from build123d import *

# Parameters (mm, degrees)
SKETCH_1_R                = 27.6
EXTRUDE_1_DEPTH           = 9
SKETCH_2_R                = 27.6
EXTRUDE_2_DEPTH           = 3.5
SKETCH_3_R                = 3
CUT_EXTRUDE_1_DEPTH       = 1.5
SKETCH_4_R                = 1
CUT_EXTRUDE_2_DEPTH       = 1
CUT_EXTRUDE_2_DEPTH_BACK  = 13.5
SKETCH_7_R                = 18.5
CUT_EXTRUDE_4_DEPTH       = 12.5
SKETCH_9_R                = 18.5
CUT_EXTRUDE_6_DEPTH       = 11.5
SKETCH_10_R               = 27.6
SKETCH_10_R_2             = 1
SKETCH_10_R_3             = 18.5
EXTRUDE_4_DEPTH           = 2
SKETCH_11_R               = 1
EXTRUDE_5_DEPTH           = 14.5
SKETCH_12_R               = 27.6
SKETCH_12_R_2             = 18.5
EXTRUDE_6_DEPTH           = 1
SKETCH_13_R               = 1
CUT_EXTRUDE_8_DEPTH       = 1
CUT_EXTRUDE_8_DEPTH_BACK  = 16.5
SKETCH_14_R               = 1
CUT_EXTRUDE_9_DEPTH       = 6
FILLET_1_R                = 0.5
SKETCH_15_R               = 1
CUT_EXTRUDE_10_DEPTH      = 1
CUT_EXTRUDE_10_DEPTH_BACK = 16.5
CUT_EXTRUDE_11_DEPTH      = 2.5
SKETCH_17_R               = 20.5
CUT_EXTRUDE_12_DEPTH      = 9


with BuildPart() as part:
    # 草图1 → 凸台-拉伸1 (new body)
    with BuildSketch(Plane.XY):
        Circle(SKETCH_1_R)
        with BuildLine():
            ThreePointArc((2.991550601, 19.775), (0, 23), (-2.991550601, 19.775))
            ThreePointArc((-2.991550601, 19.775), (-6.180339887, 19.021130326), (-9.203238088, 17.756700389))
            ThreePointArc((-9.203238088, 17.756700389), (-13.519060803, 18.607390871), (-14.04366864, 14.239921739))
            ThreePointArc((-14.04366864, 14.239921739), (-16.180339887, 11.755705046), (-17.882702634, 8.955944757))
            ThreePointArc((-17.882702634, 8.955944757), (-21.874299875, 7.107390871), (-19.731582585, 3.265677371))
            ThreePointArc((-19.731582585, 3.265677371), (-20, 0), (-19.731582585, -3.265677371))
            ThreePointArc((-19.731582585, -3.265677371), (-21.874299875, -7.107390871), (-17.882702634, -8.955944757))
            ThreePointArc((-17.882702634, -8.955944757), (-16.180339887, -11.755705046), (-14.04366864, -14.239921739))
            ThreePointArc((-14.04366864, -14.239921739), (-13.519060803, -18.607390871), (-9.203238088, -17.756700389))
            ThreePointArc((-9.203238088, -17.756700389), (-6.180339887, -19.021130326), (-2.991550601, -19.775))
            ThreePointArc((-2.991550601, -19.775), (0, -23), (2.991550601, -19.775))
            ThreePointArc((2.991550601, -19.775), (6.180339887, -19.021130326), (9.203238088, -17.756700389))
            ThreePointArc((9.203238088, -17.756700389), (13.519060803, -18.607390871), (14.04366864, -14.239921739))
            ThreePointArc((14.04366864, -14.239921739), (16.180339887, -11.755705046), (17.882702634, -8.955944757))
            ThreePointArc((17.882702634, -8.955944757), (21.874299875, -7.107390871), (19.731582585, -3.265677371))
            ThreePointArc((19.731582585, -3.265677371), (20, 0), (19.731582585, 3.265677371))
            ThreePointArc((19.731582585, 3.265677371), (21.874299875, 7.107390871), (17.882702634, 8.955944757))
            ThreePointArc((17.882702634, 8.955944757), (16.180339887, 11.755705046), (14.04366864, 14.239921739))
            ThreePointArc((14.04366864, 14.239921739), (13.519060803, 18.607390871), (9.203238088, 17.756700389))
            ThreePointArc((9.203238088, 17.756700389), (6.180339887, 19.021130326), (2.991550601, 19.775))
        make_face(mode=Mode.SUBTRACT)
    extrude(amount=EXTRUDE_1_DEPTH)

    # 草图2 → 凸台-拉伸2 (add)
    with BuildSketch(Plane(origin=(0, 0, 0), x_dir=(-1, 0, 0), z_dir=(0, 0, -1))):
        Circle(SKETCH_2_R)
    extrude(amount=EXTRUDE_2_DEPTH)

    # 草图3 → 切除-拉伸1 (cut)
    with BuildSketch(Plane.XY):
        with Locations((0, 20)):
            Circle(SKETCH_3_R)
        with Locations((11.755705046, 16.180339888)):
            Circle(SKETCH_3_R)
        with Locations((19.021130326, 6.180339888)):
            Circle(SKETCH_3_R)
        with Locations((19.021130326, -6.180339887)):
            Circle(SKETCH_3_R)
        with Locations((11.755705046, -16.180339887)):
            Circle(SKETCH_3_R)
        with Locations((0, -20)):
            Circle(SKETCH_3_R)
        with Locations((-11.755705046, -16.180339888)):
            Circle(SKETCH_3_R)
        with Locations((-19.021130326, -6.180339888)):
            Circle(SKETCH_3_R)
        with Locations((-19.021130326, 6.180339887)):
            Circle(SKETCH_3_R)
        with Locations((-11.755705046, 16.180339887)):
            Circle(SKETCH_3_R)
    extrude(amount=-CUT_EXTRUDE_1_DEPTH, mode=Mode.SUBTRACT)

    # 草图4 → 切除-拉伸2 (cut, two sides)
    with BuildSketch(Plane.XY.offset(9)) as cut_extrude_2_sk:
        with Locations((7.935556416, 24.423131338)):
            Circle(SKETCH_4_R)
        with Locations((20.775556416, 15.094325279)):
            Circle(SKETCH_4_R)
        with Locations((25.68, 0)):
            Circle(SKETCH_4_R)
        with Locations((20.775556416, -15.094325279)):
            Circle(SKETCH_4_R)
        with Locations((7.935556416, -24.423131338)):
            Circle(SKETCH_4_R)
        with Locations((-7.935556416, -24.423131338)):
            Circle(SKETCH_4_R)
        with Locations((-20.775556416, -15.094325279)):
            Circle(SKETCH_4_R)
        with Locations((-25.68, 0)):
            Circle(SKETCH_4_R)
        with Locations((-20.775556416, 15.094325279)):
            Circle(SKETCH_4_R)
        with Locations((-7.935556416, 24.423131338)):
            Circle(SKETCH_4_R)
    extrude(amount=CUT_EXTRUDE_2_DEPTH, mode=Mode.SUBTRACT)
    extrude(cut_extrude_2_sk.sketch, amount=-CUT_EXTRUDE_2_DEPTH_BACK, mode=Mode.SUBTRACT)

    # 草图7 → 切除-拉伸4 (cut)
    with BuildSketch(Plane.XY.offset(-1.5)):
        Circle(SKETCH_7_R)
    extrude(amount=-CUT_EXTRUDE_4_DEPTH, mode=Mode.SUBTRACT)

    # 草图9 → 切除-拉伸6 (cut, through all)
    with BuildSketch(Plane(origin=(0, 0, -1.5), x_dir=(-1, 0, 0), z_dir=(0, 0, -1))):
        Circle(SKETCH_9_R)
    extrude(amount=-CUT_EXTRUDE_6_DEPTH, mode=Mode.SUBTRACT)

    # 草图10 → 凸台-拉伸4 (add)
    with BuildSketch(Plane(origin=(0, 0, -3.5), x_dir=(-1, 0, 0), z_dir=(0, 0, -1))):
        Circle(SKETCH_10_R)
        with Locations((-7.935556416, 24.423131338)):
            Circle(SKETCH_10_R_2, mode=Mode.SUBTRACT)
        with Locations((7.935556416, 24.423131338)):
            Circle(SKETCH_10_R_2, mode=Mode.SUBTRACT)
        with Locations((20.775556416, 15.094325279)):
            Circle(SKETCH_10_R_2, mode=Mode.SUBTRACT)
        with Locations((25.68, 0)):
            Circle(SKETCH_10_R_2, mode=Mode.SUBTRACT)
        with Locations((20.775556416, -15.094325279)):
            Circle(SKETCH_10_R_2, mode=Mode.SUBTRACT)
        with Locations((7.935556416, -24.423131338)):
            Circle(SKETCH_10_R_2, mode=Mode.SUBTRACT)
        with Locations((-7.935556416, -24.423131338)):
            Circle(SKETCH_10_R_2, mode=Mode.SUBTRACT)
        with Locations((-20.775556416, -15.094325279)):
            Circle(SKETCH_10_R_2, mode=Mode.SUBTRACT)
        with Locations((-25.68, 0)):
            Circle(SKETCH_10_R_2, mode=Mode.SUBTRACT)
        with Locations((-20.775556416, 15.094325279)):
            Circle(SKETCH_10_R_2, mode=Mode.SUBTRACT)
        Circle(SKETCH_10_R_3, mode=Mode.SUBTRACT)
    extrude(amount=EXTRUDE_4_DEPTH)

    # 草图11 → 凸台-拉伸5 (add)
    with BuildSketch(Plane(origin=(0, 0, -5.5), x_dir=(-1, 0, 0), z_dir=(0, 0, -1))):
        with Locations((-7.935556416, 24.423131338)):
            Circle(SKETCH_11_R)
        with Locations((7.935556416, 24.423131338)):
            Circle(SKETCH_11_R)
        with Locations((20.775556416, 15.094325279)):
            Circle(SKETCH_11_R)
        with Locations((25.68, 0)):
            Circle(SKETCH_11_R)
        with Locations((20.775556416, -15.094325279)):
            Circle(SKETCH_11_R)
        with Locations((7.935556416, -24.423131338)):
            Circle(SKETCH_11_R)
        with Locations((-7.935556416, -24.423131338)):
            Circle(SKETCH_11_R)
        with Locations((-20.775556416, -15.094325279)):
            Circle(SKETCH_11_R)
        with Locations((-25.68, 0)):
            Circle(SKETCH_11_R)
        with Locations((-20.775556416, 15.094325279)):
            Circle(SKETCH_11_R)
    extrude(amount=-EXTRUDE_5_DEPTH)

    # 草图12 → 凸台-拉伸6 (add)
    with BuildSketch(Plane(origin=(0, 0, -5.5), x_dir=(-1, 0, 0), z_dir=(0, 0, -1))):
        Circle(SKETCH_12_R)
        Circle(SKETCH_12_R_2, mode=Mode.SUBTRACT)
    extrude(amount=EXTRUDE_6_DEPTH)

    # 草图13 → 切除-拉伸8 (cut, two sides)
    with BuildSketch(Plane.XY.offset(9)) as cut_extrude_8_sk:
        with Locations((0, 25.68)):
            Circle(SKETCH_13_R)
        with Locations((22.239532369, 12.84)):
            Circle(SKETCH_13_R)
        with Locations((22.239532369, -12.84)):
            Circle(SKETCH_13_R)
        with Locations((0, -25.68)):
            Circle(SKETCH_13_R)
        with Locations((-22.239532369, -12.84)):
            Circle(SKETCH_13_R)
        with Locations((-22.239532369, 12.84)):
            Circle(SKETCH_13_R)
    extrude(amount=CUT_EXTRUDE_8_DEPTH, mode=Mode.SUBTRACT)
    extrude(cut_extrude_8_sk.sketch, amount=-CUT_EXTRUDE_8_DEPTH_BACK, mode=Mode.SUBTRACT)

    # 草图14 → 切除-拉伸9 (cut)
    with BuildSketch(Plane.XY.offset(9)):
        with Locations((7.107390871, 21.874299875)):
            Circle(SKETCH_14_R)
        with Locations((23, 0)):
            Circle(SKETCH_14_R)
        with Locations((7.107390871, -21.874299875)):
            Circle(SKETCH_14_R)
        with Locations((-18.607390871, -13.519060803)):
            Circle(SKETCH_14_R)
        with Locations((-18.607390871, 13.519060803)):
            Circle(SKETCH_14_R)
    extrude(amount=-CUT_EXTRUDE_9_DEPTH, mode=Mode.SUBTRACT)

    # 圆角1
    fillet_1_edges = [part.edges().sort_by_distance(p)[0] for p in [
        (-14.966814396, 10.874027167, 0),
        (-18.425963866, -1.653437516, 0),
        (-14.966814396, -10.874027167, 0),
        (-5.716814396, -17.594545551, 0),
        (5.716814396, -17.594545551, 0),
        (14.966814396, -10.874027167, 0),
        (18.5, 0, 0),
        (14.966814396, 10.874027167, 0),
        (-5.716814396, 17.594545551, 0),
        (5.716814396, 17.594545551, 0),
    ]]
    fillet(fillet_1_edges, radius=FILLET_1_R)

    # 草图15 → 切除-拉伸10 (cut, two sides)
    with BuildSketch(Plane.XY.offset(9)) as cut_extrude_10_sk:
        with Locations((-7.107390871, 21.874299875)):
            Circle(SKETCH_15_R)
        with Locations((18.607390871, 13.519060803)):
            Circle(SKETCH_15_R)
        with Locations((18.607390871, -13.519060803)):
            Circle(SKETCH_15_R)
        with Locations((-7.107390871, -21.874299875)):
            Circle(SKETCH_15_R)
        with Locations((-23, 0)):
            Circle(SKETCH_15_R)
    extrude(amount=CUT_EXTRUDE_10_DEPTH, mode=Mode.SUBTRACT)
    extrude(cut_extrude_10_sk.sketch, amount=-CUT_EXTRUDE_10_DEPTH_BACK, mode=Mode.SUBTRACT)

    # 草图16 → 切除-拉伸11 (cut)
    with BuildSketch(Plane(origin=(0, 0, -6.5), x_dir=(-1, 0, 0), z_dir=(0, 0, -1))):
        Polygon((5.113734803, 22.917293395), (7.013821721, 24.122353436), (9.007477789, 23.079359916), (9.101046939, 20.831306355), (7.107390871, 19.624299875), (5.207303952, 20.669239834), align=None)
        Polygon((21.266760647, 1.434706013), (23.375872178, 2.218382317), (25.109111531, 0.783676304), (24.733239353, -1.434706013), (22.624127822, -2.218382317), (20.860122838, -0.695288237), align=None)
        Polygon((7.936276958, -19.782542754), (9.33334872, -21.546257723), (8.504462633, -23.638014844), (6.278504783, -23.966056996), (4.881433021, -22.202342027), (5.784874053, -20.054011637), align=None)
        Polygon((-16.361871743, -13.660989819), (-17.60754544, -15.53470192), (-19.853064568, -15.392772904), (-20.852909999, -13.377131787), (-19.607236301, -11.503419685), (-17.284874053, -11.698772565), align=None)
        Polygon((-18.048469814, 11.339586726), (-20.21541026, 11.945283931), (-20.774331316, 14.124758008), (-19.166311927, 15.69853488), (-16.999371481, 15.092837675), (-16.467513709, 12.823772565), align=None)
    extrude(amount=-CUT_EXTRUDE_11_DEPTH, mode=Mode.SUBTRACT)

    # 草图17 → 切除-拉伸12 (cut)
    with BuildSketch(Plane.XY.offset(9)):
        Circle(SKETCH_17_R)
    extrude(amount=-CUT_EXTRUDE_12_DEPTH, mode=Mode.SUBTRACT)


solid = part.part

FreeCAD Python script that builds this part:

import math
import FreeCAD as App
import Part
import Sketcher
from FreeCAD import Vector
Q = App.Units.Quantity


def edges_at(feature, points):
    """Names of the edges that pass closest to the given points."""
    edges = feature.Shape.Edges
    near = lambda p: min(range(len(edges)), key=lambda i: edges[i].distToShape(Part.Vertex(*p))[0])
    return sorted({f"Edge{near(p) + 1}" for p in points})


def add_polygon(sketch, points):
    """Adds a closed chain of lines whose ends are joined by coincident constraints."""
    first, n = sketch.GeometryCount, len(points)
    for a, b in zip(points, points[1:] + points[:1]):
        sketch.addGeometry(Part.LineSegment(App.Vector(*a, 0), App.Vector(*b, 0)), False)
    for i in range(n):
        sketch.addConstraint(Sketcher.Constraint("Coincident", first + i, 2, first + (i + 1) % n, 1))

doc = App.newDocument("Part")
body = doc.addObject("PartDesign::Body", "Body")

sketch1 = body.newObject("Sketcher::SketchObject", "Sketch")
sketch1.AttachmentSupport = (doc.getObject("XY_Plane"), [""])
sketch1.MapMode = "FlatFace"
sketch1.addGeometry(Part.Circle(Vector(0, 0, 0), Vector(0, 0, 1), 27.6), False)
sketch1.addGeometry(Part.ArcOfCircle(Part.Circle(Vector(0, 20, 0), Vector(0, 0, 1), 3), math.radians(-4), math.radians(184)), False)
sketch1.addGeometry(Part.ArcOfCircle(Part.Circle(Vector(0, 0, 0), Vector(0, 0, 1), 20), math.radians(62.6), math.radians(81.4)), False)
sketch1.addGeometry(Part.ArcOfCircle(Part.Circle(Vector(11.8, 16.2, 0), Vector(0, 0, 1), 3), math.radians(-40), math.radians(148)), False)
sketch1.addGeometry(Part.ArcOfCircle(Part.Circle(Vector(0, 0, 0), Vector(0, 0, 1), 20), math.radians(26.6), math.radians(45.4)), False)
sketch1.addGeometry(Part.ArcOfCircle(Part.Circle(Vector(19, 6.2, 0), Vector(0, 0, 1), 3), math.radians(-76), math.radians(112)), False)
sketch1.addGeometry(Part.ArcOfCircle(Part.Circle(Vector(0, 0, 0), Vector(0, 0, 1), 20), math.radians(-9.4), math.radians(9.4)), False)
sketch1.addGeometry(Part.ArcOfCircle(Part.Circle(Vector(19, -6.2, 0), Vector(0, 0, 1), 3), math.radians(-112), math.radians(76)), False)
sketch1.addGeometry(Part.ArcOfCircle(Part.Circle(Vector(0, 0, 0), Vector(0, 0, 1), 20), math.radians(-45.4), math.radians(-26.6)), False)
sketch1.addGeometry(Part.ArcOfCircle(Part.Circle(Vector(11.8, -16.2, 0), Vector(0, 0, 1), 3), math.radians(-148), math.radians(40)), False)
sketch1.addGeometry(Part.ArcOfCircle(Part.Circle(Vector(0, 0, 0), Vector(0, 0, 1), 20), math.radians(-81.4), math.radians(-62.6)), False)
sketch1.addGeometry(Part.ArcOfCircle(Part.Circle(Vector(0, -20, 0), Vector(0, 0, 1), 3), math.radians(176), math.radians(364)), False)
sketch1.addGeometry(Part.ArcOfCircle(Part.Circle(Vector(0, 0, 0), Vector(0, 0, 1), 20), math.radians(-117.4), math.radians(-98.6)), False)
sketch1.addGeometry(Part.ArcOfCircle(Part.Circle(Vector(-11.8, -16.2, 0), Vector(0, 0, 1), 3), math.radians(140), math.radians(328)), False)
sketch1.addGeometry(Part.ArcOfCircle(Part.Circle(Vector(0, 0, 0), Vector(0, 0, 1), 20), math.radians(-153.4), math.radians(-134.6)), False)
sketch1.addGeometry(Part.ArcOfCircle(Part.Circle(Vector(-19, -6.2, 0), Vector(0, 0, 1), 3), math.radians(104), math.radians(292)), False)
sketch1.addGeometry(Part.ArcOfCircle(Part.Circle(Vector(0, 0, 0), Vector(0, 0, 1), 20), math.radians(170.6), math.radians(189.4)), False)
sketch1.addGeometry(Part.ArcOfCircle(Part.Circle(Vector(-19, 6.2, 0), Vector(0, 0, 1), 3), math.radians(68), math.radians(256)), False)
sketch1.addGeometry(Part.ArcOfCircle(Part.Circle(Vector(0, 0, 0), Vector(0, 0, 1), 20), math.radians(134.6), math.radians(153.4)), False)
sketch1.addGeometry(Part.ArcOfCircle(Part.Circle(Vector(-11.8, 16.2, 0), Vector(0, 0, 1), 3), math.radians(32), math.radians(220)), False)
sketch1.addGeometry(Part.ArcOfCircle(Part.Circle(Vector(0, 0, 0), Vector(0, 0, 1), 20), math.radians(98.6), math.radians(117.4)), False)
sketch1.addConstraint(Sketcher.Constraint("Coincident", 1, 1, 2, 2))
sketch1.addConstraint(Sketcher.Constraint("Coincident", 2, 1, 3, 2))
sketch1.addConstraint(Sketcher.Constraint("Coincident", 3, 1, 4, 2))
sketch1.addConstraint(Sketcher.Constraint("Coincident", 4, 1, 5, 2))
sketch1.addConstraint(Sketcher.Constraint("Coincident", 5, 1, 6, 2))
sketch1.addConstraint(Sketcher.Constraint("Coincident", 6, 1, 7, 2))
sketch1.addConstraint(Sketcher.Constraint("Coincident", 7, 1, 8, 2))
sketch1.addConstraint(Sketcher.Constraint("Coincident", 8, 1, 9, 2))
sketch1.addConstraint(Sketcher.Constraint("Coincident", 9, 1, 10, 2))
sketch1.addConstraint(Sketcher.Constraint("Coincident", 10, 1, 11, 2))
sketch1.addConstraint(Sketcher.Constraint("Coincident", 11, 1, 12, 2))
sketch1.addConstraint(Sketcher.Constraint("Coincident", 12, 1, 13, 2))
sketch1.addConstraint(Sketcher.Constraint("Coincident", 13, 1, 14, 2))
sketch1.addConstraint(Sketcher.Constraint("Coincident", 14, 1, 15, 2))
sketch1.addConstraint(Sketcher.Constraint("Coincident", 15, 1, 16, 2))
sketch1.addConstraint(Sketcher.Constraint("Coincident", 16, 1, 17, 2))
sketch1.addConstraint(Sketcher.Constraint("Coincident", 17, 1, 18, 2))
sketch1.addConstraint(Sketcher.Constraint("Coincident", 18, 1, 19, 2))
sketch1.addConstraint(Sketcher.Constraint("Coincident", 19, 1, 20, 2))
sketch1.addConstraint(Sketcher.Constraint("Coincident", 20, 1, 1, 2))
sketch1.addConstraint(Sketcher.Constraint("Coincident", 0, 3, -1, 1))
sketch1.addConstraint(Sketcher.Constraint("Coincident", 2, 3, -1, 1))
sketch1.addConstraint(Sketcher.Constraint("Coincident", 4, 3, -1, 1))
sketch1.addConstraint(Sketcher.Constraint("Coincident", 6, 3, -1, 1))
sketch1.addConstraint(Sketcher.Constraint("Coincident", 8, 3, -1, 1))
sketch1.addConstraint(Sketcher.Constraint("Coincident", 10, 3, -1, 1))
sketch1.addConstraint(Sketcher.Constraint("Coincident", 12, 3, -1, 1))
sketch1.addConstraint(Sketcher.Constraint("Coincident", 14, 3, -1, 1))
sketch1.addConstraint(Sketcher.Constraint("Coincident", 16, 3, -1, 1))
sketch1.addConstraint(Sketcher.Constraint("Coincident", 18, 3, -1, 1))
sketch1.addConstraint(Sketcher.Constraint("Coincident", 20, 3, -1, 1))
sketch1.addConstraint(Sketcher.Constraint("Equal", 1, 3))
sketch1.addConstraint(Sketcher.Constraint("Equal", 2, 4))
sketch1.addConstraint(Sketcher.Constraint("Equal", 3, 5))
sketch1.addConstraint(Sketcher.Constraint("Equal", 4, 6))
sketch1.addConstraint(Sketcher.Constraint("Equal", 5, 7))
sketch1.addConstraint(Sketcher.Constraint("Equal", 6, 8))
sketch1.addConstraint(Sketcher.Constraint("Equal", 7, 9))
sketch1.addConstraint(Sketcher.Constraint("Equal", 8, 10))
sketch1.addConstraint(Sketcher.Constraint("Equal", 9, 11))
sketch1.addConstraint(Sketcher.Constraint("Equal", 10, 12))
sketch1.addConstraint(Sketcher.Constraint("Equal", 11, 13))
sketch1.addConstraint(Sketcher.Constraint("Equal", 12, 14))
sketch1.addConstraint(Sketcher.Constraint("Equal", 13, 15))
sketch1.addConstraint(Sketcher.Constraint("Equal", 14, 16))
sketch1.addConstraint(Sketcher.Constraint("Equal", 15, 17))
sketch1.addConstraint(Sketcher.Constraint("Equal", 16, 18))
sketch1.addConstraint(Sketcher.Constraint("Equal", 17, 19))
sketch1.addConstraint(Sketcher.Constraint("Equal", 18, 20))
sketch1.addConstraint(Sketcher.Constraint("Symmetric", 1, 3, 11, 3, -1, 1))
sketch1.addConstraint(Sketcher.Constraint("Symmetric", 3, 3, 13, 3, -1, 1))
sketch1.addConstraint(Sketcher.Constraint("Symmetric", 5, 3, 15, 3, -1, 1))
sketch1.addConstraint(Sketcher.Constraint("Symmetric", 7, 3, 17, 3, -1, 1))
sketch1.addConstraint(Sketcher.Constraint("Symmetric", 9, 3, 19, 3, -1, 1))
sketch1.addConstraint(Sketcher.Constraint("Symmetric", 9, 3, 13, 3, -2))
sketch1.addConstraint(Sketcher.Constraint("Symmetric", 7, 3, 15, 3, -2))
sketch1.addConstraint(Sketcher.Constraint("PointOnObject", 1, 3, -2))
sketch1.addConstraint(Sketcher.Constraint("Radius", 1, Q("3 mm")))
sketch1.addConstraint(Sketcher.Constraint("Radius", 2, Q("20 mm")))
sketch1.addConstraint(Sketcher.Constraint("Diameter", 0, Q("55.2 mm")))
sketch1.addConstraint(Sketcher.Constraint("DistanceY", -1, 1, 1, 3, Q("20 mm")))
sketch1.addConstraint(Sketcher.Constraint("DistanceY", 5, 3, 3, 3, Q("10 mm")))
sketch1.addConstraint(Sketcher.Constraint("DistanceY", -1, 1, 2, 1, Q("17.7567 mm")))
sketch1.addConstraint(Sketcher.Constraint("DistanceY", -1, 1, 3, 3, Q("16.18034 mm")))
sketch1.addConstraint(Sketcher.Constraint("DistanceX", -1, 1, 5, 3, Q("19.02113 mm")))
pad1 = body.newObject("PartDesign::Pad", "Pad")
pad1.Profile = sketch1
pad1.Length = 9

sketch2 = body.newObject("Sketcher::SketchObject", "Sketch001")
sketch2.AttachmentSupport = (doc.getObject("XY_Plane"), [""])
sketch2.MapMode = "FlatFace"
sketch2.addGeometry(Part.Circle(Vector(0, 0, 0), Vector(0, 0, 1), 28), False)
sketch2.addConstraint(Sketcher.Constraint("Coincident", 0, 3, -1, 1))
sketch2.addConstraint(Sketcher.Constraint("Diameter", 0, Q("55.2 mm")))
pad2 = body.newObject("PartDesign::Pad", "Pad001")
pad2.Profile = sketch2
pad2.Length = 3.5
pad2.Reversed = True

sketch3 = body.newObject("Sketcher::SketchObject", "Sketch002")
sketch3.AttachmentSupport = (doc.getObject("XY_Plane"), [""])
sketch3.MapMode = "FlatFace"
sketch3.addGeometry(Part.Circle(Vector(0, 20, 0), Vector(0, 0, 1), 3), False)
sketch3.addGeometry(Part.Circle(Vector(11.8, 16.2, 0), Vector(0, 0, 1), 3), False)
sketch3.addGeometry(Part.Circle(Vector(19, 6.2, 0), Vector(0, 0, 1), 3), False)
sketch3.addGeometry(Part.Circle(Vector(19, -6.2, 0), Vector(0, 0, 1), 3), False)
sketch3.addGeometry(Part.Circle(Vector(11.8, -16.2, 0), Vector(0, 0, 1), 3), False)
sketch3.addGeometry(Part.Circle(Vector(0, -20, 0), Vector(0, 0, 1), 3), False)
sketch3.addGeometry(Part.Circle(Vector(-11.8, -16.2, 0), Vector(0, 0, 1), 3), False)
sketch3.addGeometry(Part.Circle(Vector(-19, -6.2, 0), Vector(0, 0, 1), 3), False)
sketch3.addGeometry(Part.Circle(Vector(-19, 6.2, 0), Vector(0, 0, 1), 3), False)
sketch3.addGeometry(Part.Circle(Vector(-11.8, 16.2, 0), Vector(0, 0, 1), 3), False)
sketch3.addConstraint(Sketcher.Constraint("Equal", 0, 1))
sketch3.addConstraint(Sketcher.Constraint("Equal", 1, 2))
sketch3.addConstraint(Sketcher.Constraint("Equal", 2, 3))
sketch3.addConstraint(Sketcher.Constraint("Equal", 3, 4))
sketch3.addConstraint(Sketcher.Constraint("Equal", 4, 5))
sketch3.addConstraint(Sketcher.Constraint("Equal", 5, 6))
sketch3.addConstraint(Sketcher.Constraint("Equal", 6, 7))
sketch3.addConstraint(Sketcher.Constraint("Equal", 7, 8))
sketch3.addConstraint(Sketcher.Constraint("Equal", 8, 9))
sketch3.addConstraint(Sketcher.Constraint("Symmetric", 0, 3, 5, 3, -1, 1))
sketch3.addConstraint(Sketcher.Constraint("Symmetric", 1, 3, 6, 3, -1, 1))
sketch3.addConstraint(Sketcher.Constraint("Symmetric", 2, 3, 7, 3, -1, 1))
sketch3.addConstraint(Sketcher.Constraint("Symmetric", 3, 3, 8, 3, -1, 1))
sketch3.addConstraint(Sketcher.Constraint("Symmetric", 4, 3, 9, 3, -1, 1))
sketch3.addConstraint(Sketcher.Constraint("Symmetric", 4, 3, 6, 3, -2))
sketch3.addConstraint(Sketcher.Constraint("Symmetric", 3, 3, 7, 3, -2))
sketch3.addConstraint(Sketcher.Constraint("PointOnObject", 0, 3, -2))
sketch3.addConstraint(Sketcher.Constraint("Diameter", 0, Q("6 mm")))
sketch3.addConstraint(Sketcher.Constraint("DistanceY", -1, 1, 0, 3, Q("20 mm")))
sketch3.addConstraint(Sketcher.Constraint("DistanceY", 2, 3, 1, 3, Q("10 mm")))
sketch3.addConstraint(Sketcher.Constraint("DistanceY", -1, 1, 1, 3, Q("16.18034 mm")))
sketch3.addConstraint(Sketcher.Constraint("DistanceX", -1, 1, 2, 3, Q("19.02113 mm")))
sketch3.addConstraint(Sketcher.Constraint("DistanceX", 6, 3, 4, 3, Q("23.51141 mm")))
pocket1 = body.newObject("PartDesign::Pocket", "Pocket")
pocket1.Profile = sketch3
pocket1.Length = 1.5

sketch4 = body.newObject("Sketcher::SketchObject", "Sketch003")
sketch4.AttachmentSupport = (doc.getObject("XY_Plane"), [""])
sketch4.MapMode = "FlatFace"
sketch4.AttachmentOffset = App.Placement(Vector(0, 0, 9), App.Rotation())
sketch4.addGeometry(Part.Circle(Vector(7.9, 24.4, 0), Vector(0, 0, 1), 1), False)
sketch4.addGeometry(Part.Circle(Vector(20.8, 15.1, 0), Vector(0, 0, 1), 1), False)
sketch4.addGeometry(Part.Circle(Vector(25.7, 0, 0), Vector(0, 0, 1), 1), False)
sketch4.addGeometry(Part.Circle(Vector(20.8, -15.1, 0), Vector(0, 0, 1), 1), False)
sketch4.addGeometry(Part.Circle(Vector(7.9, -24.4, 0), Vector(0, 0, 1), 1), False)
sketch4.addGeometry(Part.Circle(Vector(-7.9, -24.4, 0), Vector(0, 0, 1), 1), False)
sketch4.addGeometry(Part.Circle(Vector(-20.8, -15.1, 0), Vector(0, 0, 1), 1), False)
sketch4.addGeometry(Part.Circle(Vector(-25.7, 0, 0), Vector(0, 0, 1), 1), False)
sketch4.addGeometry(Part.Circle(Vector(-20.8, 15.1, 0), Vector(0, 0, 1), 1), False)
sketch4.addGeometry(Part.Circle(Vector(-7.9, 24.4, 0), Vector(0, 0, 1), 1), False)
sketch4.addConstraint(Sketcher.Constraint("Equal", 0, 1))
sketch4.addConstraint(Sketcher.Constraint("Equal", 1, 2))
sketch4.addConstraint(Sketcher.Constraint("Equal", 2, 3))
sketch4.addConstraint(Sketcher.Constraint("Equal", 3, 4))
sketch4.addConstraint(Sketcher.Constraint("Equal", 4, 5))
sketch4.addConstraint(Sketcher.Constraint("Equal", 5, 6))
sketch4.addConstraint(Sketcher.Constraint("Equal", 6, 7))
sketch4.addConstraint(Sketcher.Constraint("Equal", 7, 8))
sketch4.addConstraint(Sketcher.Constraint("Equal", 8, 9))
sketch4.addConstraint(Sketcher.Constraint("Symmetric", 0, 3, 5, 3, -1, 1))
sketch4.addConstraint(Sketcher.Constraint("Symmetric", 1, 3, 6, 3, -1, 1))
sketch4.addConstraint(Sketcher.Constraint("Symmetric", 2, 3, 7, 3, -1, 1))
sketch4.addConstraint(Sketcher.Constraint("Symmetric", 3, 3, 8, 3, -1, 1))
sketch4.addConstraint(Sketcher.Constraint("Symmetric", 4, 3, 9, 3, -1, 1))
sketch4.addConstraint(Sketcher.Constraint("Symmetric", 4, 3, 5, 3, -2))
sketch4.addConstraint(Sketcher.Constraint("Symmetric", 3, 3, 6, 3, -2))
sketch4.addConstraint(Sketcher.Constraint("PointOnObject", 2, 3, -1))
sketch4.addConstraint(Sketcher.Constraint("Diameter", 0, Q("2 mm")))
sketch4.addConstraint(Sketcher.Constraint("DistanceX", -1, 1, 2, 3, Q("25.68 mm")))
sketch4.addConstraint(Sketcher.Constraint("DistanceX", 0, 3, 1, 3, Q("12.84 mm")))
sketch4.addConstraint(Sketcher.Constraint("DistanceY", -1, 1, 0, 3, Q("24.423131 mm")))
sketch4.addConstraint(Sketcher.Constraint("DistanceY", 3, 3, 1, 3, Q("30.188651 mm")))
sketch4.addConstraint(Sketcher.Constraint("DistanceX", -1, 1, 0, 3, Q("7.935556 mm")))
pocket2 = body.newObject("PartDesign::Pocket", "Pocket001")
pocket2.Profile = sketch4
pocket2.Type = "ThroughAll"
pocket2.Midplane = True

sketch5 = body.newObject("Sketcher::SketchObject", "Sketch004")
sketch5.AttachmentSupport = (doc.getObject("XY_Plane"), [""])
sketch5.MapMode = "FlatFace"
sketch5.AttachmentOffset = App.Placement(Vector(0, 0, -1.5), App.Rotation())
sketch5.addGeometry(Part.Circle(Vector(0, 0, 0), Vector(0, 0, 1), 18), False)
sketch5.addConstraint(Sketcher.Constraint("Coincident", 0, 3, -1, 1))
sketch5.addConstraint(Sketcher.Constraint("Diameter", 0, Q("37 mm")))
pocket3 = body.newObject("PartDesign::Pocket", "Pocket002")
pocket3.Profile = sketch5
pocket3.Length = 12.5

sketch6 = body.newObject("Sketcher::SketchObject", "Sketch005")
sketch6.AttachmentSupport = (doc.getObject("XY_Plane"), [""])
sketch6.MapMode = "FlatFace"
sketch6.AttachmentOffset = App.Placement(Vector(0, 0, -1.5), App.Rotation())
sketch6.addGeometry(Part.Circle(Vector(0, 0, 0), Vector(0, 0, 1), 18), False)
sketch6.addConstraint(Sketcher.Constraint("Coincident", 0, 3, -1, 1))
sketch6.addConstraint(Sketcher.Constraint("Diameter", 0, Q("37 mm")))
pocket4 = body.newObject("PartDesign::Pocket", "Pocket003")
pocket4.Profile = sketch6
pocket4.Type = "ThroughAll"
pocket4.Reversed = True

sketch7 = body.newObject("Sketcher::SketchObject", "Sketch006")
sketch7.AttachmentSupport = (doc.getObject("XY_Plane"), [""])
sketch7.MapMode = "FlatFace"
sketch7.AttachmentOffset = App.Placement(Vector(0, 0, -3.5), App.Rotation())
sketch7.addGeometry(Part.Circle(Vector(0, 0, 0), Vector(0, 0, 1), 27.6), False)
sketch7.addGeometry(Part.Circle(Vector(20.8, -15.1, 0), Vector(0, 0, 1), 1), False)
sketch7.addGeometry(Part.Circle(Vector(7.9, -24.4, 0), Vector(0, 0, 1), 1), False)
sketch7.addGeometry(Part.Circle(Vector(25.7, 0, 0), Vector(0, 0, 1), 1), False)
sketch7.addGeometry(Part.Circle(Vector(-7.9, -24.4, 0), Vector(0, 0, 1), 1), False)
sketch7.addGeometry(Part.Circle(Vector(-20.8, -15.1, 0), Vector(0, 0, 1), 1), False)
sketch7.addGeometry(Part.Circle(Vector(0, 0, 0), Vector(0, 0, 1), 18.5), False)
sketch7.addGeometry(Part.Circle(Vector(-25.7, 0, 0), Vector(0, 0, 1), 1), False)
sketch7.addGeometry(Part.Circle(Vector(20.8, 15.1, 0), Vector(0, 0, 1), 1), False)
sketch7.addGeometry(Part.Circle(Vector(7.9, 24.4, 0), Vector(0, 0, 1), 1), False)
sketch7.addGeometry(Part.Circle(Vector(-7.9, 24.4, 0), Vector(0, 0, 1), 1), False)
sketch7.addGeometry(Part.Circle(Vector(-20.8, 15.1, 0), Vector(0, 0, 1), 1), False)
sketch7.addConstraint(Sketcher.Constraint("Coincident", 0, 3, -1, 1))
sketch7.addConstraint(Sketcher.Constraint("Coincident", 6, 3, -1, 1))
sketch7.addConstraint(Sketcher.Constraint("Equal", 1, 2))
sketch7.addConstraint(Sketcher.Constraint("Equal", 2, 3))
sketch7.addConstraint(Sketcher.Constraint("Equal", 3, 4))
sketch7.addConstraint(Sketcher.Constraint("Equal", 4, 5))
sketch7.addConstraint(Sketcher.Constraint("Equal", 5, 7))
sketch7.addConstraint(Sketcher.Constraint("Equal", 7, 8))
sketch7.addConstraint(Sketcher.Constraint("Equal", 8, 9))
sketch7.addConstraint(Sketcher.Constraint("Equal", 9, 10))
sketch7.addConstraint(Sketcher.Constraint("Equal", 10, 11))
sketch7.addConstraint(Sketcher.Constraint("Symmetric", 3, 3, 7, 3, -1, 1))
sketch7.addConstraint(Sketcher.Constraint("Symmetric", 5, 3, 8, 3, -1, 1))
sketch7.addConstraint(Sketcher.Constraint("Symmetric", 4, 3, 9, 3, -1, 1))
sketch7.addConstraint(Sketcher.Constraint("Symmetric", 2, 3, 10, 3, -1, 1))
sketch7.addConstraint(Sketcher.Constraint("Symmetric", 1, 3, 11, 3, -1, 1))
sketch7.addConstraint(Sketcher.Constraint("Symmetric", 2, 3, 4, 3, -2))
sketch7.addConstraint(Sketcher.Constraint("Symmetric", 1, 3, 5, 3, -2))
sketch7.addConstraint(Sketcher.Constraint("PointOnObject", 3, 3, -1))
sketch7.addConstraint(Sketcher.Constraint("Diameter", 1, Q("2 mm")))
sketch7.addConstraint(Sketcher.Constraint("Diameter", 6, Q("37 mm")))
sketch7.addConstraint(Sketcher.Constraint("Diameter", 0, Q("55.2 mm")))
sketch7.addConstraint(Sketcher.Constraint("DistanceX", -1, 1, 3, 3, Q("25.68 mm")))
sketch7.addConstraint(Sketcher.Constraint("DistanceX", 2, 3, 1, 3, Q("12.84 mm")))
sketch7.addConstraint(Sketcher.Constraint("DistanceY", 2, 3, -1, 1, Q("24.423131 mm")))
sketch7.addConstraint(Sketcher.Constraint("DistanceY", 1, 3, 8, 3, Q("30.188651 mm")))
sketch7.addConstraint(Sketcher.Constraint("DistanceX", -1, 1, 1, 3, Q("20.775556 mm")))
pad3 = body.newObject("PartDesign::Pad", "Pad002")
pad3.Profile = sketch7
pad3.Length = 2
pad3.Reversed = True

sketch8 = body.newObject("Sketcher::SketchObject", "Sketch007")
sketch8.AttachmentSupport = (doc.getObject("XY_Plane"), [""])
sketch8.MapMode = "FlatFace"
sketch8.AttachmentOffset = App.Placement(Vector(0, 0, -5.5), App.Rotation())
sketch8.addGeometry(Part.Circle(Vector(7.9, 24.4, 0), Vector(0, 0, 1), 1), False)
sketch8.addGeometry(Part.Circle(Vector(-7.9, 24.4, 0), Vector(0, 0, 1), 1), False)
sketch8.addGeometry(Part.Circle(Vector(-20.8, 15.1, 0), Vector(0, 0, 1), 1), False)
sketch8.addGeometry(Part.Circle(Vector(-25.7, 0, 0), Vector(0, 0, 1), 1), False)
sketch8.addGeometry(Part.Circle(Vector(-20.8, -15.1, 0), Vector(0, 0, 1), 1), False)
sketch8.addGeometry(Part.Circle(Vector(-7.9, -24.4, 0), Vector(0, 0, 1), 1), False)
sketch8.addGeometry(Part.Circle(Vector(7.9, -24.4, 0), Vector(0, 0, 1), 1), False)
sketch8.addGeometry(Part.Circle(Vector(20.8, -15.1, 0), Vector(0, 0, 1), 1), False)
sketch8.addGeometry(Part.Circle(Vector(25.7, 0, 0), Vector(0, 0, 1), 1), False)
sketch8.addGeometry(Part.Circle(Vector(20.8, 15.1, 0), Vector(0, 0, 1), 1), False)
sketch8.addConstraint(Sketcher.Constraint("Equal", 0, 1))
sketch8.addConstraint(Sketcher.Constraint("Equal", 1, 2))
sketch8.addConstraint(Sketcher.Constraint("Equal", 2, 3))
sketch8.addConstraint(Sketcher.Constraint("Equal", 3, 4))
sketch8.addConstraint(Sketcher.Constraint("Equal", 4, 5))
sketch8.addConstraint(Sketcher.Constraint("Equal", 5, 6))
sketch8.addConstraint(Sketcher.Constraint("Equal", 6, 7))
sketch8.addConstraint(Sketcher.Constraint("Equal", 7, 8))
sketch8.addConstraint(Sketcher.Constraint("Equal", 8, 9))
sketch8.addConstraint(Sketcher.Constraint("Symmetric", 0, 3, 5, 3, -1, 1))
sketch8.addConstraint(Sketcher.Constraint("Symmetric", 1, 3, 6, 3, -1, 1))
sketch8.addConstraint(Sketcher.Constraint("Symmetric", 2, 3, 7, 3, -1, 1))
sketch8.addConstraint(Sketcher.Constraint("Symmetric", 3, 3, 8, 3, -1, 1))
sketch8.addConstraint(Sketcher.Constraint("Symmetric", 4, 3, 9, 3, -1, 1))
sketch8.addConstraint(Sketcher.Constraint("Symmetric", 0, 3, 1, 3, -2))
sketch8.addConstraint(Sketcher.Constraint("Symmetric", 4, 3, 7, 3, -2))
sketch8.addConstraint(Sketcher.Constraint("PointOnObject", 3, 3, -1))
sketch8.addConstraint(Sketcher.Constraint("Diameter", 0, Q("2 mm")))
sketch8.addConstraint(Sketcher.Constraint("DistanceX", 3, 3, -1, 1, Q("25.68 mm")))
sketch8.addConstraint(Sketcher.Constraint("DistanceX", 2, 3, 1, 3, Q("12.84 mm")))
sketch8.addConstraint(Sketcher.Constraint("DistanceY", -1, 1, 0, 3, Q("24.423131 mm")))
sketch8.addConstraint(Sketcher.Constraint("DistanceY", 4, 3, 2, 3, Q("30.188651 mm")))
sketch8.addConstraint(Sketcher.Constraint("DistanceX", -1, 1, 0, 3, Q("7.935556 mm")))
pad4 = body.newObject("PartDesign::Pad", "Pad003")
pad4.Profile = sketch8
pad4.Length = 14.5

sketch9 = body.newObject("Sketcher::SketchObject", "Sketch008")
sketch9.AttachmentSupport = (doc.getObject("XY_Plane"), [""])
sketch9.MapMode = "FlatFace"
sketch9.AttachmentOffset = App.Placement(Vector(0, 0, -5.5), App.Rotation())
sketch9.addGeometry(Part.Circle(Vector(0, 0, 0), Vector(0, 0, 1), 28), False)
sketch9.addGeometry(Part.Circle(Vector(0, 0, 0), Vector(0, 0, 1), 18), False)
sketch9.addConstraint(Sketcher.Constraint("Coincident", 0, 3, -1, 1))
sketch9.addConstraint(Sketcher.Constraint("Coincident", 1, 3, -1, 1))
sketch9.addConstraint(Sketcher.Constraint("Diameter", 1, Q("37 mm")))
sketch9.addConstraint(Sketcher.Constraint("Diameter", 0, Q("55.2 mm")))
pad5 = body.newObject("PartDesign::Pad", "Pad004")
pad5.Profile = sketch9
pad5.Length = 1
pad5.Reversed = True

sketch10 = body.newObject("Sketcher::SketchObject", "Sketch009")
sketch10.AttachmentSupport = (doc.getObject("XY_Plane"), [""])
sketch10.MapMode = "FlatFace"
sketch10.AttachmentOffset = App.Placement(Vector(0, 0, 9), App.Rotation())
sketch10.addGeometry(Part.Circle(Vector(0, 25.7, 0), Vector(0, 0, 1), 1), False)
sketch10.addGeometry(Part.Circle(Vector(22.2, 12.8, 0), Vector(0, 0, 1), 1), False)
sketch10.addGeometry(Part.Circle(Vector(22.2, -12.8, 0), Vector(0, 0, 1), 1), False)
sketch10.addGeometry(Part.Circle(Vector(0, -25.7, 0), Vector(0, 0, 1), 1), False)
sketch10.addGeometry(Part.Circle(Vector(-22.2, -12.8, 0), Vector(0, 0, 1), 1), False)
sketch10.addGeometry(Part.Circle(Vector(-22.2, 12.8, 0), Vector(0, 0, 1), 1), False)
sketch10.addConstraint(Sketcher.Constraint("Equal", 0, 1))
sketch10.addConstraint(Sketcher.Constraint("Equal", 1, 2))
sketch10.addConstraint(Sketcher.Constraint("Equal", 2, 3))
sketch10.addConstraint(Sketcher.Constraint("Equal", 3, 4))
sketch10.addConstraint(Sketcher.Constraint("Equal", 4, 5))
sketch10.addConstraint(Sketcher.Constraint("Symmetric", 0, 3, 3, 3, -1, 1))
sketch10.addConstraint(Sketcher.Constraint("Symmetric", 1, 3, 4, 3, -1, 1))
sketch10.addConstraint(Sketcher.Constraint("Symmetric", 2, 3, 5, 3, -1, 1))
sketch10.addConstraint(Sketcher.Constraint("Symmetric", 2, 3, 4, 3, -2))
sketch10.addConstraint(Sketcher.Constraint("PointOnObject", 0, 3, -2))
sketch10.addConstraint(Sketcher.Constraint("Diameter", 0, Q("2 mm")))
sketch10.addConstraint(Sketcher.Constraint("DistanceY", -1, 1, 0, 3, Q("25.68 mm")))
sketch10.addConstraint(Sketcher.Constraint("DistanceY", -1, 1, 1, 3, Q("12.84 mm")))
sketch10.addConstraint(Sketcher.Constraint("DistanceX", -1, 1, 1, 3, Q("22.239532 mm")))
pocket5 = body.newObject("PartDesign::Pocket", "Pocket004")
pocket5.Profile = sketch10
pocket5.Type = "ThroughAll"
pocket5.Midplane = True

sketch11 = body.newObject("Sketcher::SketchObject", "Sketch010")
sketch11.AttachmentSupport = (doc.getObject("XY_Plane"), [""])
sketch11.MapMode = "FlatFace"
sketch11.AttachmentOffset = App.Placement(Vector(0, 0, 9), App.Rotation())
sketch11.addGeometry(Part.Circle(Vector(7.1, 21.9, 0), Vector(0, 0, 1), 1), False)
sketch11.addGeometry(Part.Circle(Vector(23, 0, 0), Vector(0, 0, 1), 1), False)
sketch11.addGeometry(Part.Circle(Vector(7.1, -21.9, 0), Vector(0, 0, 1), 1), False)
sketch11.addGeometry(Part.Circle(Vector(-18.6, -13.5, 0), Vector(0, 0, 1), 1), False)
sketch11.addGeometry(Part.Circle(Vector(-18.6, 13.5, 0), Vector(0, 0, 1), 1), False)
sketch11.addConstraint(Sketcher.Constraint("Equal", 0, 1))
sketch11.addConstraint(Sketcher.Constraint("Equal", 1, 2))
sketch11.addConstraint(Sketcher.Constraint("Equal", 2, 3))
sketch11.addConstraint(Sketcher.Constraint("Equal", 3, 4))
sketch11.addConstraint(Sketcher.Constraint("Symmetric", 0, 3, 2, 3, -1))
sketch11.addConstraint(Sketcher.Constraint("Symmetric", 3, 3, 4, 3, -1))
sketch11.addConstraint(Sketcher.Constraint("PointOnObject", 1, 3, -1))
sketch11.addConstraint(Sketcher.Constraint("Diameter", 0, Q("2 mm")))
sketch11.addConstraint(Sketcher.Constraint("DistanceX", -1, 1, 1, 3, Q("23 mm")))
sketch11.addConstraint(Sketcher.Constraint("DistanceY", -1, 1, 0, 3, Q("21.8743 mm")))
sketch11.addConstraint(Sketcher.Constraint("DistanceX", -1, 1, 0, 3, Q("7.107391 mm")))
sketch11.addConstraint(Sketcher.Constraint("DistanceX", 3, 3, -1, 1, Q("18.607391 mm")))
sketch11.addConstraint(Sketcher.Constraint("DistanceY", 3, 3, -1, 1, Q("13.519061 mm")))
pocket6 = body.newObject("PartDesign::Pocket", "Pocket005")
pocket6.Profile = sketch11
pocket6.Length = 6
doc.recompute()

fillet = body.newObject("PartDesign::Fillet", "Fillet")
fillet.Base = (pocket6, edges_at(pocket6, [
    (-14.967, 10.874, 0),
    (-18.426, -1.653, 0),
    (-14.967, -10.874, 0),
    (-5.717, -17.595, 0),
    (5.717, -17.595, 0),
    (14.967, -10.874, 0),
    (18.5, 0, 0),
    (14.967, 10.874, 0),
    (-5.717, 17.595, 0),
    (5.717, 17.595, 0),
]))
fillet.Radius = 0.5

sketch12 = body.newObject("Sketcher::SketchObject", "Sketch011")
sketch12.AttachmentSupport = (doc.getObject("XY_Plane"), [""])
sketch12.MapMode = "FlatFace"
sketch12.AttachmentOffset = App.Placement(Vector(0, 0, 9), App.Rotation())
sketch12.addGeometry(Part.Circle(Vector(-7.1, 21.9, 0), Vector(0, 0, 1), 1), False)
sketch12.addGeometry(Part.Circle(Vector(18.6, 13.5, 0), Vector(0, 0, 1), 1), False)
sketch12.addGeometry(Part.Circle(Vector(18.6, -13.5, 0), Vector(0, 0, 1), 1), False)
sketch12.addGeometry(Part.Circle(Vector(-7.1, -21.9, 0), Vector(0, 0, 1), 1), False)
sketch12.addGeometry(Part.Circle(Vector(-23, 0, 0), Vector(0, 0, 1), 1), False)
sketch12.addConstraint(Sketcher.Constraint("Equal", 0, 1))
sketch12.addConstraint(Sketcher.Constraint("Equal", 1, 2))
sketch12.addConstraint(Sketcher.Constraint("Equal", 2, 3))
sketch12.addConstraint(Sketcher.Constraint("Equal", 3, 4))
sketch12.addConstraint(Sketcher.Constraint("Symmetric", 1, 3, 2, 3, -1))
sketch12.addConstraint(Sketcher.Constraint("Symmetric", 0, 3, 3, 3, -1))
sketch12.addConstraint(Sketcher.Constraint("PointOnObject", 4, 3, -1))
sketch12.addConstraint(Sketcher.Constraint("Diameter", 0, Q("2 mm")))
sketch12.addConstraint(Sketcher.Constraint("DistanceX", 4, 3, -1, 1, Q("23 mm")))
sketch12.addConstraint(Sketcher.Constraint("DistanceY", -1, 1, 0, 3, Q("21.8743 mm")))
sketch12.addConstraint(Sketcher.Constraint("DistanceX", 0, 3, -1, 1, Q("7.107391 mm")))
sketch12.addConstraint(Sketcher.Constraint("DistanceX", -1, 1, 1, 3, Q("18.607391 mm")))
sketch12.addConstraint(Sketcher.Constraint("DistanceY", -1, 1, 1, 3, Q("13.519061 mm")))
pocket7 = body.newObject("PartDesign::Pocket", "Pocket006")
pocket7.Profile = sketch12
pocket7.Type = "ThroughAll"
pocket7.Midplane = True

sketch13 = body.newObject("Sketcher::SketchObject", "Sketch012")
sketch13.AttachmentSupport = (doc.getObject("XY_Plane"), [""])
sketch13.MapMode = "FlatFace"
sketch13.AttachmentOffset = App.Placement(Vector(0, 0, -6.5), App.Rotation())
add_polygon(sketch13, [(-7.013822, 24.122353), (-5.113735, 22.917293), (-5.207304, 20.66924), (-7.107391, 19.6243), (-9.101047, 20.831306), (-9.007478, 23.07936)])
add_polygon(sketch13, [(-23.375872, 2.218382), (-21.266761, 1.434706), (-20.860123, -0.695288), (-22.624128, -2.218382), (-24.733239, -1.434706), (-25.109112, 0.783676)])
add_polygon(sketch13, [(-9.333349, -21.546258), (-7.936277, -19.782543), (-5.784874, -20.054012), (-4.881433, -22.202342), (-6.278505, -23.966057), (-8.504463, -23.638015)])
add_polygon(sketch13, [(17.607545, -15.534702), (16.361872, -13.66099), (17.284874, -11.698773), (19.607236, -11.50342), (20.85291, -13.377132), (19.853065, -15.392773)])
add_polygon(sketch13, [(20.21541, 11.945284), (18.04847, 11.339587), (16.467514, 12.823773), (16.999371, 15.092838), (19.166312, 15.698535), (20.774331, 14.124758)])
sketch13.addConstraint(Sketcher.Constraint("Distance", 0, Q("2.25 mm")))
sketch13.addConstraint(Sketcher.Constraint("Distance", 1, Q("2.25 mm")))
sketch13.addConstraint(Sketcher.Constraint("Distance", 4, Q("2.25 mm")))
sketch13.addConstraint(Sketcher.Constraint("Distance", 5, Q("2.25 mm")))
sketch13.addConstraint(Sketcher.Constraint("Distance", 6, Q("2.25 mm")))
sketch13.addConstraint(Sketcher.Constraint("Distance", 9, Q("2.25 mm")))
sketch13.addConstraint(Sketcher.Constraint("Distance", 10, Q("2.25 mm")))
sketch13.addConstraint(Sketcher.Constraint("Distance", 11, Q("2.25 mm")))
sketch13.addConstraint(Sketcher.Constraint("Distance", 12, Q("2.25 mm")))
sketch13.addConstraint(Sketcher.Constraint("Distance", 15, Q("2.25 mm")))
sketch13.addConstraint(Sketcher.Constraint("Distance", 16, Q("2.25 mm")))
sketch13.addConstraint(Sketcher.Constraint("Distance", 17, Q("2.25 mm")))
sketch13.addConstraint(Sketcher.Constraint("Distance", 18, Q("2.25 mm")))
sketch13.addConstraint(Sketcher.Constraint("Distance", 21, Q("2.25 mm")))
sketch13.addConstraint(Sketcher.Constraint("Distance", 22, Q("2.25 mm")))
sketch13.addConstraint(Sketcher.Constraint("Distance", 23, Q("2.25 mm")))
sketch13.addConstraint(Sketcher.Constraint("Distance", 24, Q("2.25 mm")))
sketch13.addConstraint(Sketcher.Constraint("Distance", 27, Q("2.25 mm")))
sketch13.addConstraint(Sketcher.Constraint("Distance", 28, Q("2.25 mm")))
sketch13.addConstraint(Sketcher.Constraint("Distance", 29, Q("2.25 mm")))
sketch13.addConstraint(Sketcher.Constraint("DistanceY", 22, 2, 19, 2, Q("3.694 mm")))
sketch13.addConstraint(Sketcher.Constraint("DistanceY", -1, 1, 2, 2, Q("19.6243 mm")))
sketch13.addConstraint(Sketcher.Constraint("DistanceY", 23, 2, -1, 1, Q("15.534702 mm")))
sketch13.addConstraint(Sketcher.Constraint("DistanceY", 6, 2, 3, 2, Q("19.3966 mm")))
sketch13.addConstraint(Sketcher.Constraint("DistanceY", 14, 2, 12, 2, Q("2.419799 mm")))
sketch13.addConstraint(Sketcher.Constraint("DistanceY", 15, 2, 17, 2, Q("2.419799 mm")))
sketch13.addConstraint(Sketcher.Constraint("DistanceX", 18, 2, 24, 2, Q("1.686598 mm")))
sketch13.addConstraint(Sketcher.Constraint("DistanceX", 26, 2, 24, 2, Q("1.049098 mm")))
sketch13.addConstraint(Sketcher.Constraint("DistanceX", 25, 2, 27, 2, Q("2.698798 mm")))
sketch13.addConstraint(Sketcher.Constraint("DistanceX", 27, 2, 29, 2, Q("1.049098 mm")))
sketch13.addConstraint(Sketcher.Constraint("DistanceY", -1, 1, 1, 2, Q("20.66924 mm")))
sketch13.addConstraint(Sketcher.Constraint("DistanceX", 2, 2, -1, 1, Q("7.107391 mm")))
sketch13.addConstraint(Sketcher.Constraint("DistanceY", -1, 1, 4, 2, Q("23.07936 mm")))
sketch13.addConstraint(Sketcher.Constraint("DistanceX", 5, 2, -1, 1, Q("7.013822 mm")))
sketch13.addConstraint(Sketcher.Constraint("DistanceX", 6, 2, -1, 1, Q("21.266761 mm")))
sketch13.addConstraint(Sketcher.Constraint("DistanceY", 7, 2, -1, 1, Q("0.695288 mm")))
sketch13.addConstraint(Sketcher.Constraint("DistanceX", 9, 2, -1, 1, Q("24.733239 mm")))
sketch13.addConstraint(Sketcher.Constraint("DistanceX", 10, 2, -1, 1, Q("25.109112 mm")))
sketch13.addConstraint(Sketcher.Constraint("DistanceY", 13, 2, -1, 1, Q("20.054012 mm")))
sketch13.addConstraint(Sketcher.Constraint("DistanceX", 17, 2, -1, 1, Q("9.333349 mm")))
sketch13.addConstraint(Sketcher.Constraint("DistanceX", -1, 1, 18, 2, Q("16.361872 mm")))
sketch13.addConstraint(Sketcher.Constraint("DistanceY", 18, 2, -1, 1, Q("13.66099 mm")))
sketch13.addConstraint(Sketcher.Constraint("DistanceY", 20, 2, -1, 1, Q("11.50342 mm")))
sketch13.addConstraint(Sketcher.Constraint("DistanceX", -1, 1, 21, 2, Q("20.85291 mm")))
sketch13.addConstraint(Sketcher.Constraint("DistanceY", 21, 2, -1, 1, Q("13.377132 mm")))
sketch13.addConstraint(Sketcher.Constraint("DistanceX", -1, 1, 27, 2, Q("19.166312 mm")))
sketch13.addConstraint(Sketcher.Constraint("DistanceX", -1, 1, 28, 2, Q("20.774331 mm")))
sketch13.addConstraint(Sketcher.Constraint("DistanceY", -1, 1, 28, 2, Q("14.124758 mm")))
sketch13.addConstraint(Sketcher.Constraint("DistanceX", 1, 2, 0, 2, Q("0.093569 mm")))
sketch13.addConstraint(Sketcher.Constraint("DistanceX", 3, 2, 4, 2, Q("0.093569 mm")))
sketch13.addConstraint(Sketcher.Constraint("DistanceY", 0, 2, 5, 2, Q("1.20506 mm")))
sketch13.addConstraint(Sketcher.Constraint("DistanceX", 7, 2, 2, 2, Q("13.752732 mm")))
sketch13.addConstraint(Sketcher.Constraint("DistanceY", 8, 2, 6, 2, Q("3.653088 mm")))
sketch13.addConstraint(Sketcher.Constraint("DistanceX", 8, 2, 3, 2, Q("13.523081 mm")))
sketch13.addConstraint(Sketcher.Constraint("DistanceX", 8, 2, 12, 2, Q("14.687851 mm")))
sketch13.addConstraint(Sketcher.Constraint("DistanceY", 12, 2, 8, 2, Q("17.56416 mm")))
sketch13.addConstraint(Sketcher.Constraint("DistanceX", 7, 2, 13, 2, Q("15.075249 mm")))
sketch13.addConstraint(Sketcher.Constraint("DistanceX", 13, 2, 14, 2, Q("0.903441 mm")))
sketch13.addConstraint(Sketcher.Constraint("DistanceX", 13, 2, 19, 2, Q("23.069748 mm")))
sketch13.addConstraint(Sketcher.Constraint("DistanceY", 25, 2, 0, 2, Q("10.093521 mm")))
pocket8 = body.newObject("PartDesign::Pocket", "Pocket007")
pocket8.Profile = sketch13
pocket8.Length = 2.5
pocket8.Reversed = True

sketch14 = body.newObject("Sketcher::SketchObject", "Sketch013")
sketch14.AttachmentSupport = (doc.getObject("XY_Plane"), [""])
sketch14.MapMode = "FlatFace"
sketch14.AttachmentOffset = App.Placement(Vector(0, 0, 9), App.Rotation())
sketch14.addGeometry(Part.Circle(Vector(0, 0, 0), Vector(0, 0, 1), 20), False)
sketch14.addConstraint(Sketcher.Constraint("Coincident", 0, 3, -1, 1))
sketch14.addConstraint(Sketcher.Constraint("Diameter", 0, Q("41 mm")))
pocket9 = body.newObject("PartDesign::Pocket", "Pocket008")
pocket9.Profile = sketch14
pocket9.Length = 9

doc.recompute()
